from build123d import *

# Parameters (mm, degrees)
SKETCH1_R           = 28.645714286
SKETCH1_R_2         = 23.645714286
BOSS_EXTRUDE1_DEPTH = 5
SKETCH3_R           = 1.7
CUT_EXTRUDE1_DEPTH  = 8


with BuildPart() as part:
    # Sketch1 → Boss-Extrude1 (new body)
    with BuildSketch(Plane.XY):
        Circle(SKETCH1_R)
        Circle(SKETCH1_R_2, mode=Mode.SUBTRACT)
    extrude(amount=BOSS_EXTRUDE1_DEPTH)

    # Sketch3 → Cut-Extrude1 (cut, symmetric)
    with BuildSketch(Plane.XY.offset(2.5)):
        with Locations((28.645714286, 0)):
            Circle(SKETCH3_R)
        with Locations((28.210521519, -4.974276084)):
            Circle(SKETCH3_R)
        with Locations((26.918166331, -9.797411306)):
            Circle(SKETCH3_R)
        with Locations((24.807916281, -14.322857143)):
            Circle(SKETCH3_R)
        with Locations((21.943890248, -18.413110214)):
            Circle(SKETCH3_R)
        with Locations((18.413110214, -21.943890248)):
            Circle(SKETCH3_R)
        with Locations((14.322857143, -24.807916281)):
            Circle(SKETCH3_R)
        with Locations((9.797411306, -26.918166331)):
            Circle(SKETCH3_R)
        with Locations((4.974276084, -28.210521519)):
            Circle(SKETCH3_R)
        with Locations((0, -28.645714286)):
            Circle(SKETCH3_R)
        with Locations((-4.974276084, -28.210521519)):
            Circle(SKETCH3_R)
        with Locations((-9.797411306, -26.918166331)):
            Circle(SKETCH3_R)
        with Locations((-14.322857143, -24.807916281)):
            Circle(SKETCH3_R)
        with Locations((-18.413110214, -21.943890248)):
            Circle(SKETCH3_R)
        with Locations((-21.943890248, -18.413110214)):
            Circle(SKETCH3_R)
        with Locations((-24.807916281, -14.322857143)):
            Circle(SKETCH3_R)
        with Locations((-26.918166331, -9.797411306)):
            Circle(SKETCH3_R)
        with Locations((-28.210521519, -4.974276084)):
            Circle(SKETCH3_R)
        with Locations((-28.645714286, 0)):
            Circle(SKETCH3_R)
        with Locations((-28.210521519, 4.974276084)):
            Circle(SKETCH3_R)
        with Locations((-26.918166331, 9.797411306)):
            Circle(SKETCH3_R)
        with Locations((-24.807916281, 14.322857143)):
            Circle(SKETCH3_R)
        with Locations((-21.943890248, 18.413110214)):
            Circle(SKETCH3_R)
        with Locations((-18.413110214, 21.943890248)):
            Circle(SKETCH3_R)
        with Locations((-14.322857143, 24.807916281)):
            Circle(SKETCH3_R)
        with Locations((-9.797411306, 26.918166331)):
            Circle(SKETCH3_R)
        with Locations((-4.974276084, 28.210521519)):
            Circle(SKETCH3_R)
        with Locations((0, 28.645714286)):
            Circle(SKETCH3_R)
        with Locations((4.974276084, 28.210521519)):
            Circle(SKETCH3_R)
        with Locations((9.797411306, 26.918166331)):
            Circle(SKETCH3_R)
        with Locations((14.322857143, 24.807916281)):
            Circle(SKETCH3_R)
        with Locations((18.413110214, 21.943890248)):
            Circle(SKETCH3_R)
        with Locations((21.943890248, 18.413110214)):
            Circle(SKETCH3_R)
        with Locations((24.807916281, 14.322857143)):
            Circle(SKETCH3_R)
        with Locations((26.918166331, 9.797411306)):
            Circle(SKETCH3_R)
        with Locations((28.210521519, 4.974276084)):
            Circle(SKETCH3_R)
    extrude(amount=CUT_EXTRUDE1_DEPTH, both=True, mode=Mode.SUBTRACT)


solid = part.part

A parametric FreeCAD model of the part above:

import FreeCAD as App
import Part
import Sketcher
from FreeCAD import Vector
Q = App.Units.Quantity

doc = App.newDocument("Part")
params = doc.addObject("Spreadsheet::Sheet", "Params")
for row, (alias, value) in enumerate([
    ("pad1_length", "5 mm"),
    ("sketch2_diameter", "3.4 mm"),
    ("pocket1_length", "16 mm"),
], start=1):
    params.set(f"A{row}", alias)
    params.set(f"B{row}", "=" + value)
    params.setAlias(f"B{row}", alias)

body = doc.addObject("PartDesign::Body", "Body")

sketch1 = body.newObject("Sketcher::SketchObject", "Sketch")
sketch1.AttachmentSupport = (doc.getObject("XY_Plane"), [""])
sketch1.MapMode = "FlatFace"
sketch1.addGeometry([
    Part.Circle(Vector(0, 0, 0), Vector(0, 0, 1), 29),
    Part.Circle(Vector(0, 0, 0), Vector(0, 0, 1), 24),
], False)
sketch1.addConstraint([
    Sketcher.Constraint("Coincident", 0, 3, -1, 1),
    Sketcher.Constraint("Coincident", 1, 3, -1, 1),
    Sketcher.Constraint("Diameter", 0, Q("57.291429 mm")),
    Sketcher.Constraint("Diameter", 1, Q("47.291429 mm")),
])
pad1 = body.newObject("PartDesign::Pad", "Pad")
pad1.Profile = sketch1
pad1.setExpression("Length", "Params.pad1_length")

sketch2 = body.newObject("Sketcher::SketchObject", "Sketch001")
sketch2.AttachmentSupport = (doc.getObject("XY_Plane"), [""])
sketch2.MapMode = "FlatFace"
sketch2.AttachmentOffset = App.Placement(Vector(0, 0, 2.5), App.Rotation())
sketch2.addGeometry([
    Part.Circle(Vector(28.6, 0, 0), Vector(0, 0, 1), 1.7),
    Part.Circle(Vector(28.2, -5, 0), Vector(0, 0, 1), 1.7),
    Part.Circle(Vector(26.9, -9.8, 0), Vector(0, 0, 1), 1.7),
    Part.Circle(Vector(24.8, -14.3, 0), Vector(0, 0, 1), 1.7),
    Part.Circle(Vector(21.9, -18.4, 0), Vector(0, 0, 1), 1.7),
    Part.Circle(Vector(18.4, -21.9, 0), Vector(0, 0, 1), 1.7),
    Part.Circle(Vector(14.3, -24.8, 0), Vector(0, 0, 1), 1.7),
    Part.Circle(Vector(9.8, -26.9, 0), Vector(0, 0, 1), 1.7),
    Part.Circle(Vector(5, -28.2, 0), Vector(0, 0, 1), 1.7),
    Part.Circle(Vector(0, -28.6, 0), Vector(0, 0, 1), 1.7),
    Part.Circle(Vector(-5, -28.2, 0), Vector(0, 0, 1), 1.7),
    Part.Circle(Vector(-9.8, -26.9, 0), Vector(0, 0, 1), 1.7),
    Part.Circle(Vector(-14.3, -24.8, 0), Vector(0, 0, 1), 1.7),
    Part.Circle(Vector(-18.4, -21.9, 0), Vector(0, 0, 1), 1.7),
    Part.Circle(Vector(-21.9, -18.4, 0), Vector(0, 0, 1), 1.7),
    Part.Circle(Vector(-24.8, -14.3, 0), Vector(0, 0, 1), 1.7),
    Part.Circle(Vector(-26.9, -9.8, 0), Vector(0, 0, 1), 1.7),
    Part.Circle(Vector(-28.2, -5, 0), Vector(0, 0, 1), 1.7),
    Part.Circle(Vector(-28.6, 0, 0), Vector(0, 0, 1), 1.7),
    Part.Circle(Vector(-28.2, 5, 0), Vector(0, 0, 1), 1.7),
    Part.Circle(Vector(-26.9, 9.8, 0), Vector(0, 0, 1), 1.7),
    Part.Circle(Vector(-24.8, 14.3, 0), Vector(0, 0, 1), 1.7),
    Part.Circle(Vector(-21.9, 18.4, 0), Vector(0, 0, 1), 1.7),
    Part.Circle(Vector(-18.4, 21.9, 0), Vector(0, 0, 1), 1.7),
    Part.Circle(Vector(-14.3, 24.8, 0), Vector(0, 0, 1), 1.7),
    Part.Circle(Vector(-9.8, 26.9, 0), Vector(0, 0, 1), 1.7),
    Part.Circle(Vector(-5, 28.2, 0), Vector(0, 0, 1), 1.7),
    Part.Circle(Vector(0, 28.6, 0), Vector(0, 0, 1), 1.7),
    Part.Circle(Vector(5, 28.2, 0), Vector(0, 0, 1), 1.7),
    Part.Circle(Vector(9.8, 26.9, 0), Vector(0, 0, 1), 1.7),
    Part.Circle(Vector(14.3, 24.8, 0), Vector(0, 0, 1), 1.7),
    Part.Circle(Vector(18.4, 21.9, 0), Vector(0, 0, 1), 1.7),
    Part.Circle(Vector(21.9, 18.4, 0), Vector(0, 0, 1), 1.7),
    Part.Circle(Vector(24.8, 14.3, 0), Vector(0, 0, 1), 1.7),
    Part.Circle(Vector(26.9, 9.8, 0), Vector(0, 0, 1), 1.7),
    Part.Circle(Vector(28.2, 5, 0), Vector(0, 0, 1), 1.7),
], False)
sketch2.addConstraint([
    Sketcher.Constraint("Equal", 0, 1),
    Sketcher.Constraint("Equal", 1, 2),
    Sketcher.Constraint("Equal", 2, 3),
    Sketcher.Constraint("Equal", 3, 4),
    Sketcher.Constraint("Equal", 4, 5),
    Sketcher.Constraint("Equal", 5, 6),
    Sketcher.Constraint("Equal", 6, 7),
    Sketcher.Constraint("Equal", 7, 8),
    Sketcher.Constraint("Equal", 8, 9),
    Sketcher.Constraint("Equal", 9, 10),
    Sketcher.Constraint("Equal", 10, 11),
    Sketcher.Constraint("Equal", 11, 12),
    Sketcher.Constraint("Equal", 12, 13),
    Sketcher.Constraint("Equal", 13, 14),
    Sketcher.Constraint("Equal", 14, 15),
    Sketcher.Constraint("Equal", 15, 16),
    Sketcher.Constraint("Equal", 16, 17),
    Sketcher.Constraint("Equal", 17, 18),
    Sketcher.Constraint("Equal", 18, 19),
    Sketcher.Constraint("Equal", 19, 20),
    Sketcher.Constraint("Equal", 20, 21),
    Sketcher.Constraint("Equal", 21, 22),
    Sketcher.Constraint("Equal", 22, 23),
    Sketcher.Constraint("Equal", 23, 24),
    Sketcher.Constraint("Equal", 24, 25),
    Sketcher.Constraint("Equal", 25, 26),
    Sketcher.Constraint("Equal", 26, 27),
    Sketcher.Constraint("Equal", 27, 28),
    Sketcher.Constraint("Equal", 28, 29),
    Sketcher.Constraint("Equal", 29, 30),
    Sketcher.Constraint("Equal", 30, 31),
    Sketcher.Constraint("Equal", 31, 32),
    Sketcher.Constraint("Equal", 32, 33),
    Sketcher.Constraint("Equal", 33, 34),
    Sketcher.Constraint("Equal", 34, 35),
    Sketcher.Constraint("Symmetric", 0, 3, 18, 3, -1, 1),
    Sketcher.Constraint("Symmetric", 1, 3, 19, 3, -1, 1),
    Sketcher.Constraint("Symmetric", 2, 3, 20, 3, -1, 1),
    Sketcher.Constraint("Symmetric", 3, 3, 21, 3, -1, 1),
    Sketcher.Constraint("Symmetric", 4, 3, 22, 3, -1, 1),
    Sketcher.Constraint("Symmetric", 5, 3, 23, 3, -1, 1),
    Sketcher.Constraint("Symmetric", 6, 3, 24, 3, -1, 1),
    Sketcher.Constraint("Symmetric", 7, 3, 25, 3, -1, 1),
    Sketcher.Constraint("Symmetric", 8, 3, 26, 3, -1, 1),
    Sketcher.Constraint("Symmetric", 9, 3, 27, 3, -1, 1),
    Sketcher.Constraint("Symmetric", 10, 3, 28, 3, -1, 1),
    Sketcher.Constraint("Symmetric", 11, 3, 29, 3, -1, 1),
    Sketcher.Constraint("Symmetric", 12, 3, 30, 3, -1, 1),
    Sketcher.Constraint("Symmetric", 13, 3, 31, 3, -1, 1),
    Sketcher.Constraint("Symmetric", 14, 3, 32, 3, -1, 1),
    Sketcher.Constraint("Symmetric", 15, 3, 33, 3, -1, 1),
    Sketcher.Constraint("Symmetric", 16, 3, 34, 3, -1, 1),
    Sketcher.Constraint("Symmetric", 17, 3, 35, 3, -1, 1),
    Sketcher.Constraint("Symmetric", 8, 3, 10, 3, -2),
    Sketcher.Constraint("Symmetric", 7, 3, 11, 3, -2),
    Sketcher.Constraint("Symmetric", 6, 3, 12, 3, -2),
    Sketcher.Constraint("Symmetric", 5, 3, 13, 3, -2),
    Sketcher.Constraint("Symmetric", 4, 3, 14, 3, -2),
    Sketcher.Constraint("Symmetric", 3, 3, 15, 3, -2),
    Sketcher.Constraint("Symmetric", 2, 3, 16, 3, -2),
    Sketcher.Constraint("Symmetric", 1, 3, 17, 3, -2),
    Sketcher.Constraint("PointOnObject", 0, 3, -1),
    Sketcher.Constraint("PointOnObject", 9, 3, -2),
    Sketcher.Constraint("Diameter", 0, Q("3.4 mm")),
    Sketcher.Constraint("DistanceX", 3, 3, 0, 3, Q("3.837798 mm")),
    Sketcher.Constraint("DistanceY", 4, 3, 2, 3, Q("8.615699 mm")),
    Sketcher.Constraint("DistanceX", 7, 3, 5, 3, Q("8.615699 mm")),
    Sketcher.Constraint("DistanceY", 9, 3, 6, 3, Q("3.837798 mm")),
    Sketcher.Constraint("DistanceX", -1, 1, 1, 3, Q("28.210522 mm")),
    Sketcher.Constraint("DistanceY", 2, 3, -1, 1, Q("9.797411 mm")),
    Sketcher.Constraint("DistanceX", -1, 1, 4, 3, Q("21.94389 mm")),
    Sketcher.Constraint("DistanceX", -1, 1, 5, 3, Q("18.41311 mm")),
    Sketcher.Constraint("DistanceY", 5, 3, -1, 1, Q("21.94389 mm")),
    Sketcher.Constraint("DistanceY", 8, 3, -1, 1, Q("28.210522 mm")),
    Sketcher.Constraint("DistanceX", 3, 3, 2, 3, Q("2.11025 mm")),
    Sketcher.Constraint("DistanceY", 3, 3, 1, 3, Q("9.348581 mm")),
    Sketcher.Constraint("DistanceX", 6, 3, 3, 3, Q("10.485059 mm")),
    Sketcher.Constraint("DistanceY", 6, 3, 3, 3, Q("10.485059 mm")),
    Sketcher.Constraint("DistanceY", 7, 3, 6, 3, Q("2.11025 mm")),
    Sketcher.Constraint("DistanceX", 8, 3, 6, 3, Q("9.348581 mm")),
    Sketcher.Constraint("DistanceX", 11, 3, 6, 3, Q("24.120268 mm")),
    Sketcher.Constraint("DistanceY", 15, 3, 20, 3, Q("24.120268 mm")),
])
sketch2.setExpression("Constraints[63]", "Params.sketch2_diameter")
pocket1 = body.newObject("PartDesign::Pocket", "Pocket")
pocket1.Profile = sketch2
pocket1.setExpression("Length", "Params.pocket1_length")
pocket1.Midplane = True

doc.recompute()
